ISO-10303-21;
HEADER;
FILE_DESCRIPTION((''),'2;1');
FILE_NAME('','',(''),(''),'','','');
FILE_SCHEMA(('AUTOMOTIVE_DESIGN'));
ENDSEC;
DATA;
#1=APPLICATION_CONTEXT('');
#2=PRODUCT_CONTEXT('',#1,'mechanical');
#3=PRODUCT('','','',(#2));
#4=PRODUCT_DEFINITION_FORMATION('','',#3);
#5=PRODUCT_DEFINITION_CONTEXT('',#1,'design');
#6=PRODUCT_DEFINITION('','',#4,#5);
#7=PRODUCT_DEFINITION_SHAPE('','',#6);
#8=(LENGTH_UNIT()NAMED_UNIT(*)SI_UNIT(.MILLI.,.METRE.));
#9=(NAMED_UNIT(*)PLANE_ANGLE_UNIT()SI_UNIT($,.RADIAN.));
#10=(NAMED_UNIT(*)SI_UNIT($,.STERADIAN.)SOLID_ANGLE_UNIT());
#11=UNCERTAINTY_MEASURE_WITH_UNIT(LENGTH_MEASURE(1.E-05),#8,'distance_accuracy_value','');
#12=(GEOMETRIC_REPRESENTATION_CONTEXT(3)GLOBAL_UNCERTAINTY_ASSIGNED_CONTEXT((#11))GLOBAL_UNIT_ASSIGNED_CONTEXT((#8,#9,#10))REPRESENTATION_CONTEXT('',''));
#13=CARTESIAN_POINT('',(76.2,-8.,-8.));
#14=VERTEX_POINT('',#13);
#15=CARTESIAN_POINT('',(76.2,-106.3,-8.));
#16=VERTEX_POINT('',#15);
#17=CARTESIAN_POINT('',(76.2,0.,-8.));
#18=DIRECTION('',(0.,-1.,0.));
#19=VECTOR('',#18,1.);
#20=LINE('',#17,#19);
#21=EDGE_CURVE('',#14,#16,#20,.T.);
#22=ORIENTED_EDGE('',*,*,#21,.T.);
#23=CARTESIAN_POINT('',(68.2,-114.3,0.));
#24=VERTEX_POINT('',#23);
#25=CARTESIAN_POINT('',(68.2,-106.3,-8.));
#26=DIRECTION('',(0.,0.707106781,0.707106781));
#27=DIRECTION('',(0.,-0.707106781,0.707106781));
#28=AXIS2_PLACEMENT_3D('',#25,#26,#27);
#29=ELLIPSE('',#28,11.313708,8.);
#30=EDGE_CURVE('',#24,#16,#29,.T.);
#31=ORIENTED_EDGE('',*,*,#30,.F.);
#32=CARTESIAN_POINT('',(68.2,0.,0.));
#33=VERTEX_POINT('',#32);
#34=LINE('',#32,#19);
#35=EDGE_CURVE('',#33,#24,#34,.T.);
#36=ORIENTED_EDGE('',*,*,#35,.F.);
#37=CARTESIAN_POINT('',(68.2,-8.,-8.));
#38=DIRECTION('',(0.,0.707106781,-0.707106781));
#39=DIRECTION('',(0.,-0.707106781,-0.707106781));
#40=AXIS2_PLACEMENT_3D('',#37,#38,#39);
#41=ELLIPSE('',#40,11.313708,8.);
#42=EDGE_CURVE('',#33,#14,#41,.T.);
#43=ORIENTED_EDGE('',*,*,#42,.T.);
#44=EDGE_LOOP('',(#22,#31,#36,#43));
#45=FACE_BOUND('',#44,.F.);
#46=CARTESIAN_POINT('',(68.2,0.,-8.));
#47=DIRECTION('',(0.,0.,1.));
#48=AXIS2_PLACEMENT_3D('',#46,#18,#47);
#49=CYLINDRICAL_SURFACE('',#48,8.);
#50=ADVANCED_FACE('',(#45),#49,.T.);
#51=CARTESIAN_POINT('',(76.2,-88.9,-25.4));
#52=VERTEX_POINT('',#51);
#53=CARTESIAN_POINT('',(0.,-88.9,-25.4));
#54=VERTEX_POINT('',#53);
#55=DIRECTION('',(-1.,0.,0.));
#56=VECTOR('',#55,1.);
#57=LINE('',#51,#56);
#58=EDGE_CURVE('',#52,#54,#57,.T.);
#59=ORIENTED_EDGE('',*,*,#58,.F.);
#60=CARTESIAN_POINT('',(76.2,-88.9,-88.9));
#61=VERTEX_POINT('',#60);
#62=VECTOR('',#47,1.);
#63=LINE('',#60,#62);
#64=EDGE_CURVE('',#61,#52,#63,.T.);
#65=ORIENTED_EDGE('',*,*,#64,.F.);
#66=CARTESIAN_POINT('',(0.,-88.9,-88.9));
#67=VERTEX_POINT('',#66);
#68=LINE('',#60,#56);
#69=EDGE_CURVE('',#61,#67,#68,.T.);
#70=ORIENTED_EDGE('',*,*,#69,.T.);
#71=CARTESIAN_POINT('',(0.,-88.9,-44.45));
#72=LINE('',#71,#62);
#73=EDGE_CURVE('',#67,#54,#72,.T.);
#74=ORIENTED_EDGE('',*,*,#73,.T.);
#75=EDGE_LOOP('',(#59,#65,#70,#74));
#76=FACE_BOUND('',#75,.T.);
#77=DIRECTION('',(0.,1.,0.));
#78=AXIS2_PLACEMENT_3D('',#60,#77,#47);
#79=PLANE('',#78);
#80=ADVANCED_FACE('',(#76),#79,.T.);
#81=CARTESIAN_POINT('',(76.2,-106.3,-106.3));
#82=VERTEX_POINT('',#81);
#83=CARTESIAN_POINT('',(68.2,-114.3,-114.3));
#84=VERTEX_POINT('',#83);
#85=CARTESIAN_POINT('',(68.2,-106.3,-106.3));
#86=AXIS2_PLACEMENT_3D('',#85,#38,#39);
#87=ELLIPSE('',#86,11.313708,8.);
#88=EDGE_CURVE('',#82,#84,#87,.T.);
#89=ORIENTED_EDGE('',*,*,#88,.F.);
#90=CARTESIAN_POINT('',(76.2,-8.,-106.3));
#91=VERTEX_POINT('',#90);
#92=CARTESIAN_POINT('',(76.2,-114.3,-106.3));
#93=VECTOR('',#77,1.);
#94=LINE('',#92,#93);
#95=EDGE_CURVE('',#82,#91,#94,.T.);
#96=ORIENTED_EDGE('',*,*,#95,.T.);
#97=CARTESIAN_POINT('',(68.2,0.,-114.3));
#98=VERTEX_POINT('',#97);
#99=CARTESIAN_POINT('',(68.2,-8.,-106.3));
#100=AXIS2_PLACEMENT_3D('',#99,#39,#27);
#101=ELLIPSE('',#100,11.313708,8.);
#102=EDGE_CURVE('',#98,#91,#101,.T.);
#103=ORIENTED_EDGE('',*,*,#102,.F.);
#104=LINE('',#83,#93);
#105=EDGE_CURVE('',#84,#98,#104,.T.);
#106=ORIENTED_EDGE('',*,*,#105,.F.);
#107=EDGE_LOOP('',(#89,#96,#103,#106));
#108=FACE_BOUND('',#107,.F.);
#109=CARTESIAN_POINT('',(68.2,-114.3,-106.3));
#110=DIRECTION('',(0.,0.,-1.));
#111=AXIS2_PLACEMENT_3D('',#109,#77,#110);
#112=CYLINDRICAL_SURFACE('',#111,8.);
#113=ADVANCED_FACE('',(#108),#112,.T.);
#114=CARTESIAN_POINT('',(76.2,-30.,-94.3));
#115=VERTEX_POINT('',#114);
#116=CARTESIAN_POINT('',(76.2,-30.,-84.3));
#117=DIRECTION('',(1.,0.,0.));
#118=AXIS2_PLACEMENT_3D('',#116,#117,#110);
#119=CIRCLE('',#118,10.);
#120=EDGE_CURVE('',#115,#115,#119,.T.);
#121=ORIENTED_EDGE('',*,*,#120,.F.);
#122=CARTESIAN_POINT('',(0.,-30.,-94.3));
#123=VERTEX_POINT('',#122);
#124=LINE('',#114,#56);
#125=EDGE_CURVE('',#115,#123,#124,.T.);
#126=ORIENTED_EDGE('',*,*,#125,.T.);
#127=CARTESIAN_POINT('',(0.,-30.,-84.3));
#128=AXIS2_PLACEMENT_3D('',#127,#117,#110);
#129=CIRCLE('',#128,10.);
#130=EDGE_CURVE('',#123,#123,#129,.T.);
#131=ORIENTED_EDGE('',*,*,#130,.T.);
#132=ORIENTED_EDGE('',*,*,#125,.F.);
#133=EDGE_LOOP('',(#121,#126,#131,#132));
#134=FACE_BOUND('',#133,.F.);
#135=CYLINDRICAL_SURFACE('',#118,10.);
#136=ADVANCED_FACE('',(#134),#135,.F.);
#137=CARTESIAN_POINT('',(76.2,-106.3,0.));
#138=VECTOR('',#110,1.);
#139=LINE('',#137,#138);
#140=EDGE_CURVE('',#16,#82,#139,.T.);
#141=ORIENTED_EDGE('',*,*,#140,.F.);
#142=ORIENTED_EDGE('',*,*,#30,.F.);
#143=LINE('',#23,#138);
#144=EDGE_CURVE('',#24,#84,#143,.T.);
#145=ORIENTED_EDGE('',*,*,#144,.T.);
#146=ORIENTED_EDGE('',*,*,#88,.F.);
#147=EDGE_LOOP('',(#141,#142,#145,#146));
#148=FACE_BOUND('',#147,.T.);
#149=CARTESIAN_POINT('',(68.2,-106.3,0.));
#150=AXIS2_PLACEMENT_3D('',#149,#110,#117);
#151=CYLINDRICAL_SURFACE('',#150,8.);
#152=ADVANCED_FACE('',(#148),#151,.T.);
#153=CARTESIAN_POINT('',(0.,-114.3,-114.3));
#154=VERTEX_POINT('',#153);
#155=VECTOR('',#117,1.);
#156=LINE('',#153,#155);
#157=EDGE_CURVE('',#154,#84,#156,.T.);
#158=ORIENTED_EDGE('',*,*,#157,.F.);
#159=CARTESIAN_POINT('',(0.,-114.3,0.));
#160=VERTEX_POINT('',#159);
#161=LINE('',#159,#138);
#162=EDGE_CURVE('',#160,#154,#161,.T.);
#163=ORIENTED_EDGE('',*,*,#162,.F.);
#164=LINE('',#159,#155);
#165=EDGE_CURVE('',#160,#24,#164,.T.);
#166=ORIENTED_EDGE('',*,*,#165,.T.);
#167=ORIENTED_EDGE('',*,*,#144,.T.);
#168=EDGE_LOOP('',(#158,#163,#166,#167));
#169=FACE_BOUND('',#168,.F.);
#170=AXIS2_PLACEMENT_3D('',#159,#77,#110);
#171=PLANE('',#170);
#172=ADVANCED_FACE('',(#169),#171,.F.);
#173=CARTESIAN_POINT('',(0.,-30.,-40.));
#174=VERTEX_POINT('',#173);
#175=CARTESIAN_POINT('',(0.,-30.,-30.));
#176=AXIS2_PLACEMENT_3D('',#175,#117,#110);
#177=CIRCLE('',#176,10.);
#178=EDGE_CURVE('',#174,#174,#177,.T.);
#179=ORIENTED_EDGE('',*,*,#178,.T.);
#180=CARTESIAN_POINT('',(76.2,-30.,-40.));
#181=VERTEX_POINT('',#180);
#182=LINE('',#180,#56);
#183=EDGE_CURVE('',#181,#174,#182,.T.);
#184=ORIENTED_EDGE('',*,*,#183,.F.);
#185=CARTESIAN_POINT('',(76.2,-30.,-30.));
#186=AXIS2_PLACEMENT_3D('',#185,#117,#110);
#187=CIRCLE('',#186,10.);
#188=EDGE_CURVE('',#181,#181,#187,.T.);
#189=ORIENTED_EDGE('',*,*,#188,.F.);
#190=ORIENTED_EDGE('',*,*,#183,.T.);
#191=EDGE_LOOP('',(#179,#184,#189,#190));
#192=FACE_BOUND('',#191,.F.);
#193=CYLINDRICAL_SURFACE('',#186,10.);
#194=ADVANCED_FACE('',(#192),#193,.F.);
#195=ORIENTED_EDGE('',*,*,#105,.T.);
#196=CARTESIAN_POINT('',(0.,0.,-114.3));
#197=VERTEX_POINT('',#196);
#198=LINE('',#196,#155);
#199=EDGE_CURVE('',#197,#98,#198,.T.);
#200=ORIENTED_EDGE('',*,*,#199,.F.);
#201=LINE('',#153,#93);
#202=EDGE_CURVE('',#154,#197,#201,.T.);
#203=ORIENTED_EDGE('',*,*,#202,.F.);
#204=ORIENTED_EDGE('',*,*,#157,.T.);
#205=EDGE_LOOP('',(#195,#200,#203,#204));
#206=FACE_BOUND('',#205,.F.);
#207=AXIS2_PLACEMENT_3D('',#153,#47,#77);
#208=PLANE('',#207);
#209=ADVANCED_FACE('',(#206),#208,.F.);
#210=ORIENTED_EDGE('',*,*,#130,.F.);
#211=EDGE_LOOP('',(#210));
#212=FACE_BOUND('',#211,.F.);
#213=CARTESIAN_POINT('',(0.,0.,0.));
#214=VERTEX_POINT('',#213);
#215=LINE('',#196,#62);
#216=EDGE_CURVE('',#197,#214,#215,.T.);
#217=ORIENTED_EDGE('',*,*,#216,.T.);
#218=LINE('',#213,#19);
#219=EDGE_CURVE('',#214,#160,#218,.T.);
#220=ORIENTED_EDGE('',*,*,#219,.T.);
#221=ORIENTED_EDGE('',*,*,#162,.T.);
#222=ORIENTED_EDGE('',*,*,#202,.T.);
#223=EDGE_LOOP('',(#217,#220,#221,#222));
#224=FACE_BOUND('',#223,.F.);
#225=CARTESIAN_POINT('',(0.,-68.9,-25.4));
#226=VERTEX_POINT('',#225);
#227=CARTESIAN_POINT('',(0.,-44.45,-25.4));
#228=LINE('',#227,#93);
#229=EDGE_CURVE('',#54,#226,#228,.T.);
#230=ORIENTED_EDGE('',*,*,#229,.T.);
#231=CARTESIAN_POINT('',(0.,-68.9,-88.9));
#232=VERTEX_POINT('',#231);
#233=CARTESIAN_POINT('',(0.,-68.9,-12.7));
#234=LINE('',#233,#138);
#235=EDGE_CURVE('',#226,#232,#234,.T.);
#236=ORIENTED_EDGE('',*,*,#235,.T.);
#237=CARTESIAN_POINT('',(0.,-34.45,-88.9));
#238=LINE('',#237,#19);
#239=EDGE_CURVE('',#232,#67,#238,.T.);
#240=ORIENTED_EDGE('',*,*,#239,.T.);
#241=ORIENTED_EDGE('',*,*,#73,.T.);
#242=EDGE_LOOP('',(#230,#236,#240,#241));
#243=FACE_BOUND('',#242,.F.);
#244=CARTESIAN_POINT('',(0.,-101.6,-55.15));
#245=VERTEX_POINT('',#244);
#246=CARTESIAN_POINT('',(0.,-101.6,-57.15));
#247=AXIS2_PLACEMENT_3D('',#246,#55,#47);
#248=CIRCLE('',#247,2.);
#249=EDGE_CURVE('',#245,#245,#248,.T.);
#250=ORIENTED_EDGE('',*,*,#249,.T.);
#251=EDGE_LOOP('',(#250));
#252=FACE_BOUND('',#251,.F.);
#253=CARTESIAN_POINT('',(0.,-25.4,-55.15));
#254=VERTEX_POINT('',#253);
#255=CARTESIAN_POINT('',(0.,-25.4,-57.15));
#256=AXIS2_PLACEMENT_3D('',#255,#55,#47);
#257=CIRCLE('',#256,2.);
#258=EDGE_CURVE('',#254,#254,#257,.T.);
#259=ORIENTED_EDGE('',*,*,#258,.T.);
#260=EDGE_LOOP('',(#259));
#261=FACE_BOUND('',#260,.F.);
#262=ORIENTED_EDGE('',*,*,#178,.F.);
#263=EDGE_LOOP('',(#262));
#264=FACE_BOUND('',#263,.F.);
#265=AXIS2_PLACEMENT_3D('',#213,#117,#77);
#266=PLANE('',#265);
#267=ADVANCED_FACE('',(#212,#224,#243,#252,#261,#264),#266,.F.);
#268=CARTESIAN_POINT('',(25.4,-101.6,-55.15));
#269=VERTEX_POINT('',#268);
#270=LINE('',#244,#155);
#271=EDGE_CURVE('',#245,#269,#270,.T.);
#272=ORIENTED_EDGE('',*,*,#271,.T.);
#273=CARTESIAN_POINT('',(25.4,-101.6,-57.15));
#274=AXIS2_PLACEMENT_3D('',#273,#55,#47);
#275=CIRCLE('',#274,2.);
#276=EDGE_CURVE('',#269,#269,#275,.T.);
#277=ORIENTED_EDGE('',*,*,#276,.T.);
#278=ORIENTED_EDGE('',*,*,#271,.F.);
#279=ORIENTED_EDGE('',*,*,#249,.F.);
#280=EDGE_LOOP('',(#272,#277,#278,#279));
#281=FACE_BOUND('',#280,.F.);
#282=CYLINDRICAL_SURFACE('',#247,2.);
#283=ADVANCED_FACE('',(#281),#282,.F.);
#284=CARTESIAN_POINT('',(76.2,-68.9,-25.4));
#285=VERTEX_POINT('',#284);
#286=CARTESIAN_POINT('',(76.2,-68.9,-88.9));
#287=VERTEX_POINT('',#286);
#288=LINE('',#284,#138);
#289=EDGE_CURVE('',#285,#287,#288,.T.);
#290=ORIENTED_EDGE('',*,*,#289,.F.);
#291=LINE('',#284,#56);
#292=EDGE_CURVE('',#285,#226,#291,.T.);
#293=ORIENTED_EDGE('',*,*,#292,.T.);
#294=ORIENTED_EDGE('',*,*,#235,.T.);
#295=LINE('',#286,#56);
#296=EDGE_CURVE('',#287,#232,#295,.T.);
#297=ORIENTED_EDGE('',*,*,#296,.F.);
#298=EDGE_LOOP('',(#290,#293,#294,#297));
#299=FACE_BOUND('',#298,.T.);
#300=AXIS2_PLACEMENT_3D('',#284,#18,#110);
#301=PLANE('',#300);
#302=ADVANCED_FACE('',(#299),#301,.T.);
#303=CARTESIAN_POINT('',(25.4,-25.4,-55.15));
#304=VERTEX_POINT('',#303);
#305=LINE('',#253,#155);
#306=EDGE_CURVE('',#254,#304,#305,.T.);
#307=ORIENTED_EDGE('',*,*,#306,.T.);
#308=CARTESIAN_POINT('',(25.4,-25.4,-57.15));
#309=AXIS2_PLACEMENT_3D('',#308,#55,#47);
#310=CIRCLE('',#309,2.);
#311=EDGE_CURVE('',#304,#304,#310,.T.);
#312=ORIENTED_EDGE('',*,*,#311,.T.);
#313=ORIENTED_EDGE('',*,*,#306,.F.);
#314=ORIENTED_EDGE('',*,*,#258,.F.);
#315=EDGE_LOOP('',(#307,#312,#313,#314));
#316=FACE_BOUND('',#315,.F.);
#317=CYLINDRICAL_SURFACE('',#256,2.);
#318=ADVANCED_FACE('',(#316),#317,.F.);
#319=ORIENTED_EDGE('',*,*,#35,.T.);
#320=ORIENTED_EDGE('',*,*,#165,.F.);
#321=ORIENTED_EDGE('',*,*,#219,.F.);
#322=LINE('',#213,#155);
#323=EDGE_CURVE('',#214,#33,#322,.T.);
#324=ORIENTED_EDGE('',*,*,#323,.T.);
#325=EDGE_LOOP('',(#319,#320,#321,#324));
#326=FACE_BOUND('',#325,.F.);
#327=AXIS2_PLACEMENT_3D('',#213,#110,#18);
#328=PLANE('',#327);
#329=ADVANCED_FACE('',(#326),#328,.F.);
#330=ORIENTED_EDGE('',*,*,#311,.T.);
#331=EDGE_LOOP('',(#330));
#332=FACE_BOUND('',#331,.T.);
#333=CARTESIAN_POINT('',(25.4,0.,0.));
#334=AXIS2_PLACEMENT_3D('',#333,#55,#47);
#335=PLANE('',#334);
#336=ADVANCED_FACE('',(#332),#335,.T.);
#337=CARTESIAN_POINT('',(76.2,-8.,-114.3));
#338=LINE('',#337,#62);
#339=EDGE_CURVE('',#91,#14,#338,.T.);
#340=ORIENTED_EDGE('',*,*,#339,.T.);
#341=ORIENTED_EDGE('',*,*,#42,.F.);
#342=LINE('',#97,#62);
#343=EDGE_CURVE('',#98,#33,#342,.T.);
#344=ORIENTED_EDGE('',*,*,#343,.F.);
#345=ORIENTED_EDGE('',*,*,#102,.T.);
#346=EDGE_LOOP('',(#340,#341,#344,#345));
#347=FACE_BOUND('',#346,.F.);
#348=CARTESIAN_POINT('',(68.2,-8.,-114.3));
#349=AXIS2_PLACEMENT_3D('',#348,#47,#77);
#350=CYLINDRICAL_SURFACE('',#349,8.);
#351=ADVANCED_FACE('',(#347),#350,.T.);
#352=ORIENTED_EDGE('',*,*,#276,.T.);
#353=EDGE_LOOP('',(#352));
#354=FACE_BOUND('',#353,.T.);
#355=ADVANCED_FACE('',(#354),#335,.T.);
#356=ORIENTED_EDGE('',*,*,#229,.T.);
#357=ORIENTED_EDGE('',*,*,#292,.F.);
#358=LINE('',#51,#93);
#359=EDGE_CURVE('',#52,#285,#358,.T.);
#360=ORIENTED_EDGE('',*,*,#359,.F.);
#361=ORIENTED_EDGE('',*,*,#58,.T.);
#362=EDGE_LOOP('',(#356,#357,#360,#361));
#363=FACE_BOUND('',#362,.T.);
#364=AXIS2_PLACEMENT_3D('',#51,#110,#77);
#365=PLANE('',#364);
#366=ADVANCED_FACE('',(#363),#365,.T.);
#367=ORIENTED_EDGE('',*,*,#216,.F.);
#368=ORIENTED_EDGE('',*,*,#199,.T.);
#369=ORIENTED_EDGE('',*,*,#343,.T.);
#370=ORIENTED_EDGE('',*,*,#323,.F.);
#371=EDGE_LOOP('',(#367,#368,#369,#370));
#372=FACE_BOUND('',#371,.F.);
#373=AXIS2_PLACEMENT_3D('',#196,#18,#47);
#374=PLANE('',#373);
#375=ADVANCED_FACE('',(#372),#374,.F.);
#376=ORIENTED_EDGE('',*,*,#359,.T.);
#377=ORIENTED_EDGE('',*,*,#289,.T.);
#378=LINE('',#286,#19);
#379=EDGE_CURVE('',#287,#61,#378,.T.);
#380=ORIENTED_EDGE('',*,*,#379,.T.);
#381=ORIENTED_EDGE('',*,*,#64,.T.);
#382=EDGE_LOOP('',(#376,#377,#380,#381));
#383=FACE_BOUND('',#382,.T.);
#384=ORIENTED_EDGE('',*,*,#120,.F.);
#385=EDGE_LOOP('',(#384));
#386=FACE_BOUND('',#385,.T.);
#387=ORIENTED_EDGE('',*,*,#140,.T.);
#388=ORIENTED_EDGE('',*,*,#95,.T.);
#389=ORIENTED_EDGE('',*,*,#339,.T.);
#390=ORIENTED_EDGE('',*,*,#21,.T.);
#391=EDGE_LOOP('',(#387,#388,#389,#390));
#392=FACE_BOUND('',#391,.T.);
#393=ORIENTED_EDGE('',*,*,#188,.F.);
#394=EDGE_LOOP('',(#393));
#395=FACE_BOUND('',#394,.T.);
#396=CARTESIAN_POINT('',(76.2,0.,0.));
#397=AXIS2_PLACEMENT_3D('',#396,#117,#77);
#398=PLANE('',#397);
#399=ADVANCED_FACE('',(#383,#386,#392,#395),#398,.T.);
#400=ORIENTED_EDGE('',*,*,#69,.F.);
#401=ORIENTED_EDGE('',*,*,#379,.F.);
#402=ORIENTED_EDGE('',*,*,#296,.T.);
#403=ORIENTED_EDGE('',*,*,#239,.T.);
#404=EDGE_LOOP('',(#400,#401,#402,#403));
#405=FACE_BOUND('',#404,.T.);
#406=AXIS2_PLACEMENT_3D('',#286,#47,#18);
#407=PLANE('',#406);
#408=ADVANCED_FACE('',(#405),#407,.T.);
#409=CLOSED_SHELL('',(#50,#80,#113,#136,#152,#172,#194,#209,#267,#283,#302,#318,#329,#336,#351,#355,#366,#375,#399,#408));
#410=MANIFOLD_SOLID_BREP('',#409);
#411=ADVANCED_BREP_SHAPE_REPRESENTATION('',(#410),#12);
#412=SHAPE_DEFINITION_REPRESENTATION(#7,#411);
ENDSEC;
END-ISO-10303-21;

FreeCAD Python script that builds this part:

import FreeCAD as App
import Part
import Sketcher
Q = App.Units.Quantity


def edges_at(feature, points):
    """Names of the edges that pass closest to the given points."""
    edges = feature.Shape.Edges
    near = lambda p: min(range(len(edges)), key=lambda i: edges[i].distToShape(Part.Vertex(*p))[0])
    return sorted({f"Edge{near(p) + 1}" for p in points})

doc = App.newDocument("Part")
body = doc.addObject("PartDesign::Body", "Body")

# Sketch on YZ plane
sketch1 = doc.addObject("Sketcher::SketchObject", "Sketch")
body.addObject(sketch1)
sketch1.AttachmentSupport = (doc.YZ_Plane, [""])
sketch1.MapMode = "FlatFace"
sketch1.addGeometry([
    Part.LineSegment(App.Vector(0, -114, 0), App.Vector(0, 0, 0)),
    Part.LineSegment(App.Vector(0, 0, 0), App.Vector(-114, 0, 0)),
    Part.LineSegment(App.Vector(-114, 0, 0), App.Vector(-114, -114, 0)),
    Part.LineSegment(App.Vector(-114, -114, 0), App.Vector(0, -114, 0)),
], False)
sketch1.addConstraint([
    Sketcher.Constraint("Coincident", 0, 2, 1, 1),
    Sketcher.Constraint("Coincident", 1, 2, 2, 1),
    Sketcher.Constraint("Coincident", 2, 2, 3, 1),
    Sketcher.Constraint("Coincident", 3, 2, 0, 1),
    Sketcher.Constraint("Vertical", 0),
    Sketcher.Constraint("Horizontal", 1),
    Sketcher.Constraint("Vertical", 2),
    Sketcher.Constraint("Horizontal", 3),
    Sketcher.Constraint("Coincident", 0, 2, -1, 1),
    Sketcher.Constraint("Equal", 3, 0),
    Sketcher.Constraint("DistanceX", 1, 2, 1, 1, Q("4.5 in")),
])
pad1 = doc.addObject("PartDesign::Pad", "Pad")
body.addObject(pad1)
pad1.Profile = sketch1
pad1.Length = Q("3 in")

# Sketch on YZ plane
sketch2 = doc.addObject("Sketcher::SketchObject", "Sketch001")
body.addObject(sketch2)
sketch2.AttachmentSupport = (doc.YZ_Plane, [""])
sketch2.MapMode = "FlatFace"
sketch2.AttachmentOffset = App.Placement(App.Vector(0, 0, 3 * 25.4), App.Rotation())
sketch2.addGeometry([
    Part.Circle(App.Vector(-30, -30, 0), App.Vector(0, 0, 1), 10),  # 0
    Part.Circle(App.Vector(-30, -84, 0), App.Vector(0, 0, 1), 10),  # 1
    Part.LineSegment(App.Vector(-69, -89, 0), App.Vector(-69, -25, 0)),  # 2
    Part.LineSegment(App.Vector(-69, -25, 0), App.Vector(-89, -25, 0)),  # 3
    Part.LineSegment(App.Vector(-89, -25, 0), App.Vector(-89, -89, 0)),  # 4
    Part.LineSegment(App.Vector(-89, -89, 0), App.Vector(-69, -89, 0)),  # 5
], False)
sketch2.addConstraint([
    Sketcher.Constraint("Coincident", 2, 2, 3, 1),
    Sketcher.Constraint("Coincident", 3, 2, 4, 1),
    Sketcher.Constraint("Coincident", 4, 2, 5, 1),
    Sketcher.Constraint("Coincident", 5, 2, 2, 1),
    Sketcher.Constraint("Vertical", 2),
    Sketcher.Constraint("Horizontal", 3),
    Sketcher.Constraint("Vertical", 4),
    Sketcher.Constraint("Horizontal", 5),
    Sketcher.Constraint("Equal", 0, 1),
    Sketcher.Constraint("Vertical", 0, 3, 1, 3),
    Sketcher.Constraint("DistanceY", 2, 1, 2, 2, Q("2.5 in")),
    Sketcher.Constraint("DistanceY", 2, 2, -1, 1, Q("1 in")),
    Sketcher.Constraint("Diameter", 0, Q("0.7874 in")),
    Sketcher.Constraint("DistanceX", 3, 2, 3, 1, Q("0.7874 in")),
    Sketcher.Constraint("DistanceX", 0, 3, -1, 1, Q("1.1811 in")),
    Sketcher.Constraint("DistanceY", 0, 3, -1, 1, Q("1.1811 in")),
    Sketcher.Constraint("DistanceX", 3, 2, -1, 1, Q("3.5 in")),
    Sketcher.Constraint("DistanceY", 1, 3, -1, 1, Q("3.3189 in")),
])
pocket1 = doc.addObject("PartDesign::Pocket", "Pocket")
body.addObject(pocket1)
pocket1.Profile = sketch2
pocket1.Type = "ThroughAll"
doc.recompute()

fillet = doc.addObject("PartDesign::Fillet", "Fillet")
body.addObject(fillet)
fillet.Base = (pocket1, edges_at(pocket1, [
    (76.2, -57.15, 0),
    (76.2, 0, -57.15),
    (76.2, -114.3, -57.15),
    (76.2, -57.15, -114.3),
]))
fillet.Radius = 8

# Sketch on YZ plane
sketch3 = doc.addObject("Sketcher::SketchObject", "Sketch002")
body.addObject(sketch3)
sketch3.AttachmentSupport = (doc.YZ_Plane, [""])
sketch3.MapMode = "FlatFace"
sketch3.addGeometry([
    Part.Circle(App.Vector(-25.4, -57.1, 0), App.Vector(0, 0, 1), 2),
    Part.Circle(App.Vector(-101.6, -57.1, 0), App.Vector(0, 0, 1), 2),
], False)
sketch3.addConstraint([
    Sketcher.Constraint("Equal", 0, 1),
    Sketcher.Constraint("Horizontal", 0, 3, 1, 3),
    Sketcher.Constraint("DistanceX", 0, 3, -1, 1, Q("1 in")),
    Sketcher.Constraint("Diameter", 0, 4.0),
    Sketcher.Constraint("DistanceY", 0, 3, -1, 1, Q("2.25 in")),
    Sketcher.Constraint("DistanceX", 1, 3, -1, 1, Q("4 in")),
])
pocket2 = doc.addObject("PartDesign::Pocket", "Pocket001")
body.addObject(pocket2)
pocket2.Profile = sketch3
pocket2.Length = Q("1 in")
pocket2.Reversed = True

doc.recompute()
